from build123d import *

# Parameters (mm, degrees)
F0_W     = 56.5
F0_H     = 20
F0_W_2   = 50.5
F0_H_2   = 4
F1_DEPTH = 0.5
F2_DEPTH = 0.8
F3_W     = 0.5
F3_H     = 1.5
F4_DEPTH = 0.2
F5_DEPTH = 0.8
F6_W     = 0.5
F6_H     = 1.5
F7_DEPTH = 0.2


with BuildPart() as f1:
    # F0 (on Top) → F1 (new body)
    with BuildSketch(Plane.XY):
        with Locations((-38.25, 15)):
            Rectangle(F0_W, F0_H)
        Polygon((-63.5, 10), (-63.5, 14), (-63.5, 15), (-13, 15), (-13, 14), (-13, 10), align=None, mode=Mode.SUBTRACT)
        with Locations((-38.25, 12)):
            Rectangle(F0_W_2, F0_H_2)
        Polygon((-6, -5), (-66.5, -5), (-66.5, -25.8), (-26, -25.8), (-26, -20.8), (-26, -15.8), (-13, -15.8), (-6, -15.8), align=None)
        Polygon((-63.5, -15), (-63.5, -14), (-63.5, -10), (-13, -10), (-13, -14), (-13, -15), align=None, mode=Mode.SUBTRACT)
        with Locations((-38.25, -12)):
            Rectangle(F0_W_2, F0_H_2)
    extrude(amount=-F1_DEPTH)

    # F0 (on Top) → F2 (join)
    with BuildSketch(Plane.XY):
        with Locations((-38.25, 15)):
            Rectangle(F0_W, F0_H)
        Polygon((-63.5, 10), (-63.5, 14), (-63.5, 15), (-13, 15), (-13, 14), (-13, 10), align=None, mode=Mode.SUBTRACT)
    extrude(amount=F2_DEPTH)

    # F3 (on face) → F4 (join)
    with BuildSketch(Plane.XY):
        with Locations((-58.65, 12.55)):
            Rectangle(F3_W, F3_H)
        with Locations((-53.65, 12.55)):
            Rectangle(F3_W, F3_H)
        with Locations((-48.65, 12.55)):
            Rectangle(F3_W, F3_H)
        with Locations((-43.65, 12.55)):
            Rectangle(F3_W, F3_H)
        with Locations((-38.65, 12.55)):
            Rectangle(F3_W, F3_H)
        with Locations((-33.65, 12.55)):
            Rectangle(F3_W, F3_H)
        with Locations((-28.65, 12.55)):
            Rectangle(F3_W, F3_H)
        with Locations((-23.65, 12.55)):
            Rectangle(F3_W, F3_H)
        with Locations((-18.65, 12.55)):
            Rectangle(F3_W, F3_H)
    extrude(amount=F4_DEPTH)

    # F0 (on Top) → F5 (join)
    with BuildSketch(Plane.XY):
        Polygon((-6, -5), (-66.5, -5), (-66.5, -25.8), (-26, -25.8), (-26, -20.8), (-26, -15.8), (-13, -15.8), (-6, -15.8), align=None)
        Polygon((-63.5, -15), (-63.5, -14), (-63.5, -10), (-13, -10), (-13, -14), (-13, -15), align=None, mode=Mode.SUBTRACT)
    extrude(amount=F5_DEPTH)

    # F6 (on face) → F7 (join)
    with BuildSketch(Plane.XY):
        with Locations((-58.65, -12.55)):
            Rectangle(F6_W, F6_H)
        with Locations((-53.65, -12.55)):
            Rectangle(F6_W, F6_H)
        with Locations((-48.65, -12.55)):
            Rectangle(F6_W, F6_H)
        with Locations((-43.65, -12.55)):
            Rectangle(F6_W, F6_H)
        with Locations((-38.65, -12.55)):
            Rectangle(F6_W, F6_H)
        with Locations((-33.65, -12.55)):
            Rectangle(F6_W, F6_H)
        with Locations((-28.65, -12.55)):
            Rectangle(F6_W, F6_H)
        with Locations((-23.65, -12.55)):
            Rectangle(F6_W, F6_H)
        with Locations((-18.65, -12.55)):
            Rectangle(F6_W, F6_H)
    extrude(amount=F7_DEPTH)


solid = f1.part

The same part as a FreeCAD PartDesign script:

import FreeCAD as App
import Part
import Sketcher

V = App.Vector
Q = App.Units.Quantity


def add_polygon(sketch, points):
    """Adds a closed chain of lines whose ends are joined by coincident constraints."""
    first, n = sketch.GeometryCount, len(points)
    for a, b in zip(points, points[1:] + points[:1]):
        sketch.addGeometry(Part.LineSegment(App.Vector(*a, 0), App.Vector(*b, 0)), False)
    for i in range(n):
        sketch.addConstraint(Sketcher.Constraint("Coincident", first + i, 2, first + (i + 1) % n, 1))

doc = App.newDocument("Part")
params = doc.addObject("Spreadsheet::Sheet", "Params")
for row, (alias, value) in enumerate([
    ("sketch1_width", "20 mm"),
    ("sketch1_height", "1 mm"),
    ("sketch1_height2", "10 mm"),
    ("sketch1_width2", "56.5 mm"),
    ("sketch1_width3", "50.5 mm"),
    ("pad1_length", "0.5 mm"),
    ("sketch2_height", "20 mm"),
    ("sketch2_height2", "5 mm"),
    ("sketch2_width", "56.5 mm"),
    ("sketch2_width2", "50.5 mm"),
    ("pad2_length", "0.8 mm"),
    ("sketch3_width", "0.5 mm"),
    ("sketch3_height", "1.5 mm"),
    ("pad3_length", "0.2 mm"),
    ("sketch4_width", "20 mm"),
    ("sketch4_height", "10 mm"),
    ("sketch4_height2", "5 mm"),
    ("sketch4_width2", "60.5 mm"),
    ("sketch4_width3", "50.5 mm"),
    ("pad4_length", "0.8 mm"),
    ("sketch5_width", "0.5 mm"),
    ("sketch5_height", "1.5 mm"),
    ("pad5_length", "0.2 mm"),
], start=1):
    params.set(f"A{row}", alias)
    params.set(f"B{row}", "=" + value)
    params.setAlias(f"B{row}", alias)

body = doc.addObject("PartDesign::Body", "Body")
body.AllowCompound = True

sketch1 = body.newObject("Sketcher::SketchObject", "Sketch")
sketch1.AttachmentSupport = (doc.getObject("XY_Plane"), [""])
sketch1.MapMode = "FlatFace"
add_polygon(sketch1, [(-66.5, 25), (-66.5, 5), (-10, 5), (-10, 25)])
add_polygon(sketch1, [(-63.5, 14), (-63.5, 15), (-13, 15), (-13, 14)])
add_polygon(sketch1, [(-6, -5), (-66.5, -5), (-66.5, -25.8), (-26, -25.8), (-26, -15.8), (-6, -15.8)])
add_polygon(sketch1, [(-13, -15), (-63.5, -15), (-63.5, -14), (-13, -14)])
sketch1.addConstraint(Sketcher.Constraint("Vertical", 0))
sketch1.addConstraint(Sketcher.Constraint("Horizontal", 1))
sketch1.addConstraint(Sketcher.Constraint("Vertical", 2))
sketch1.addConstraint(Sketcher.Constraint("Horizontal", 3))
sketch1.addConstraint(Sketcher.Constraint("Vertical", 4))
sketch1.addConstraint(Sketcher.Constraint("Horizontal", 5))
sketch1.addConstraint(Sketcher.Constraint("Vertical", 6))
sketch1.addConstraint(Sketcher.Constraint("Horizontal", 7))
sketch1.addConstraint(Sketcher.Constraint("Horizontal", 8))
sketch1.addConstraint(Sketcher.Constraint("Vertical", 9))
sketch1.addConstraint(Sketcher.Constraint("Horizontal", 10))
sketch1.addConstraint(Sketcher.Constraint("Vertical", 11))
sketch1.addConstraint(Sketcher.Constraint("Horizontal", 12))
sketch1.addConstraint(Sketcher.Constraint("Vertical", 13))
sketch1.addConstraint(Sketcher.Constraint("Horizontal", 14))
sketch1.addConstraint(Sketcher.Constraint("Vertical", 15))
sketch1.addConstraint(Sketcher.Constraint("Horizontal", 16))
sketch1.addConstraint(Sketcher.Constraint("Vertical", 17))
sketch1.addConstraint(Sketcher.Constraint("Symmetric", 0, 2, 8, 2, -1))
sketch1.addConstraint(Sketcher.Constraint("Symmetric", 4, 2, 14, 2, -1))
sketch1.addConstraint(Sketcher.Constraint("Symmetric", 6, 2, 16, 2, -1))
sketch1.addConstraint(Sketcher.Constraint("Equal", 12, 0))
sketch1.addConstraint(Sketcher.Constraint("DistanceX", 12, 1, 12, 2, Q("20 mm")))
sketch1.addConstraint(Sketcher.Constraint("DistanceY", 4, 1, 4, 2, Q("1 mm")))
sketch1.addConstraint(Sketcher.Constraint("DistanceY", 11, 1, 11, 2, Q("10 mm")))
sketch1.addConstraint(Sketcher.Constraint("DistanceX", 1, 1, 1, 2, Q("56.5 mm")))
sketch1.addConstraint(Sketcher.Constraint("DistanceX", 5, 1, 5, 2, Q("50.5 mm")))
sketch1.addConstraint(Sketcher.Constraint("DistanceX", 8, 2, 8, 1, Q("60.5 mm")))
sketch1.addConstraint(Sketcher.Constraint("DistanceY", 9, 2, 9, 1, Q("20.8 mm")))
sketch1.addConstraint(Sketcher.Constraint("DistanceY", -1, 1, 0, 2, Q("5 mm")))
sketch1.addConstraint(Sketcher.Constraint("DistanceX", 1, 2, -1, 1, Q("10 mm")))
sketch1.addConstraint(Sketcher.Constraint("DistanceY", -1, 1, 4, 2, Q("15 mm")))
sketch1.addConstraint(Sketcher.Constraint("DistanceX", 5, 2, -1, 1, Q("13 mm")))
sketch1.setExpression("Constraints[40]", "Params.sketch1_width")
sketch1.setExpression("Constraints[41]", "Params.sketch1_height")
sketch1.setExpression("Constraints[42]", "Params.sketch1_height2")
sketch1.setExpression("Constraints[43]", "Params.sketch1_width2")
sketch1.setExpression("Constraints[44]", "Params.sketch1_width3")
pad1 = body.newObject("PartDesign::Pad", "Pad")
pad1.Profile = sketch1
pad1.setExpression("Length", "Params.pad1_length")
pad1.Reversed = True

sketch2 = body.newObject("Sketcher::SketchObject", "Sketch001")
sketch2.AttachmentSupport = (doc.getObject("XY_Plane"), [""])
sketch2.MapMode = "FlatFace"
add_polygon(sketch2, [(-66.5, 25), (-66.5, 5), (-10, 5), (-10, 25)])
add_polygon(sketch2, [(-13, 10), (-63.5, 10), (-63.5, 15), (-13, 15)])
sketch2.addConstraint(Sketcher.Constraint("Vertical", 0))
sketch2.addConstraint(Sketcher.Constraint("Horizontal", 1))
sketch2.addConstraint(Sketcher.Constraint("Vertical", 2))
sketch2.addConstraint(Sketcher.Constraint("Horizontal", 3))
sketch2.addConstraint(Sketcher.Constraint("Horizontal", 4))
sketch2.addConstraint(Sketcher.Constraint("Vertical", 5))
sketch2.addConstraint(Sketcher.Constraint("Horizontal", 6))
sketch2.addConstraint(Sketcher.Constraint("Vertical", 7))
sketch2.addConstraint(Sketcher.Constraint("DistanceY", 0, 2, 0, 1, Q("20 mm")))
sketch2.addConstraint(Sketcher.Constraint("DistanceY", 5, 1, 5, 2, Q("5 mm")))
sketch2.addConstraint(Sketcher.Constraint("DistanceX", 1, 1, 1, 2, Q("56.5 mm")))
sketch2.addConstraint(Sketcher.Constraint("DistanceX", 4, 2, 4, 1, Q("50.5 mm")))
sketch2.addConstraint(Sketcher.Constraint("DistanceY", -1, 1, 0, 2, Q("5 mm")))
sketch2.addConstraint(Sketcher.Constraint("DistanceX", 1, 2, -1, 1, Q("10 mm")))
sketch2.addConstraint(Sketcher.Constraint("DistanceY", -1, 1, 4, 2, Q("10 mm")))
sketch2.addConstraint(Sketcher.Constraint("DistanceX", 6, 2, -1, 1, Q("13 mm")))
sketch2.setExpression("Constraints[16]", "Params.sketch2_height")
sketch2.setExpression("Constraints[17]", "Params.sketch2_height2")
sketch2.setExpression("Constraints[18]", "Params.sketch2_width")
sketch2.setExpression("Constraints[19]", "Params.sketch2_width2")
pad2 = body.newObject("PartDesign::Pad", "Pad001")
pad2.Profile = sketch2
pad2.setExpression("Length", "Params.pad2_length")

sketch3 = body.newObject("Sketcher::SketchObject", "Sketch002")
sketch3.AttachmentSupport = (doc.getObject("XY_Plane"), [""])
sketch3.MapMode = "FlatFace"
add_polygon(sketch3, [(-58.9, 13.3), (-58.9, 11.8), (-58.4, 11.8), (-58.4, 13.3)])
add_polygon(sketch3, [(-53.9, 13.3), (-53.9, 11.8), (-53.4, 11.8), (-53.4, 13.3)])
add_polygon(sketch3, [(-48.9, 13.3), (-48.9, 11.8), (-48.4, 11.8), (-48.4, 13.3)])
add_polygon(sketch3, [(-43.9, 13.3), (-43.9, 11.8), (-43.4, 11.8), (-43.4, 13.3)])
add_polygon(sketch3, [(-38.9, 13.3), (-38.9, 11.8), (-38.4, 11.8), (-38.4, 13.3)])
add_polygon(sketch3, [(-33.9, 13.3), (-33.9, 11.8), (-33.4, 11.8), (-33.4, 13.3)])
add_polygon(sketch3, [(-28.9, 13.3), (-28.9, 11.8), (-28.4, 11.8), (-28.4, 13.3)])
add_polygon(sketch3, [(-23.9, 13.3), (-23.9, 11.8), (-23.4, 11.8), (-23.4, 13.3)])
add_polygon(sketch3, [(-18.9, 13.3), (-18.9, 11.8), (-18.4, 11.8), (-18.4, 13.3)])
sketch3.addConstraint(Sketcher.Constraint("Vertical", 0))
sketch3.addConstraint(Sketcher.Constraint("Horizontal", 1))
sketch3.addConstraint(Sketcher.Constraint("Vertical", 2))
sketch3.addConstraint(Sketcher.Constraint("Horizontal", 3))
sketch3.addConstraint(Sketcher.Constraint("Vertical", 4))
sketch3.addConstraint(Sketcher.Constraint("Horizontal", 5))
sketch3.addConstraint(Sketcher.Constraint("Vertical", 6))
sketch3.addConstraint(Sketcher.Constraint("Horizontal", 7))
sketch3.addConstraint(Sketcher.Constraint("Vertical", 8))
sketch3.addConstraint(Sketcher.Constraint("Horizontal", 9))
sketch3.addConstraint(Sketcher.Constraint("Vertical", 10))
sketch3.addConstraint(Sketcher.Constraint("Horizontal", 11))
sketch3.addConstraint(Sketcher.Constraint("Vertical", 12))
sketch3.addConstraint(Sketcher.Constraint("Horizontal", 13))
sketch3.addConstraint(Sketcher.Constraint("Vertical", 14))
sketch3.addConstraint(Sketcher.Constraint("Horizontal", 15))
sketch3.addConstraint(Sketcher.Constraint("Vertical", 16))
sketch3.addConstraint(Sketcher.Constraint("Horizontal", 17))
sketch3.addConstraint(Sketcher.Constraint("Vertical", 18))
sketch3.addConstraint(Sketcher.Constraint("Horizontal", 19))
sketch3.addConstraint(Sketcher.Constraint("Vertical", 20))
sketch3.addConstraint(Sketcher.Constraint("Horizontal", 21))
sketch3.addConstraint(Sketcher.Constraint("Vertical", 22))
sketch3.addConstraint(Sketcher.Constraint("Horizontal", 23))
sketch3.addConstraint(Sketcher.Constraint("Vertical", 24))
sketch3.addConstraint(Sketcher.Constraint("Horizontal", 25))
sketch3.addConstraint(Sketcher.Constraint("Vertical", 26))
sketch3.addConstraint(Sketcher.Constraint("Horizontal", 27))
sketch3.addConstraint(Sketcher.Constraint("Vertical", 28))
sketch3.addConstraint(Sketcher.Constraint("Horizontal", 29))
sketch3.addConstraint(Sketcher.Constraint("Vertical", 30))
sketch3.addConstraint(Sketcher.Constraint("Horizontal", 31))
sketch3.addConstraint(Sketcher.Constraint("Vertical", 32))
sketch3.addConstraint(Sketcher.Constraint("Horizontal", 33))
sketch3.addConstraint(Sketcher.Constraint("Vertical", 34))
sketch3.addConstraint(Sketcher.Constraint("Horizontal", 35))
sketch3.addConstraint(Sketcher.Constraint("Horizontal", 1, 2, 4, 2))
sketch3.addConstraint(Sketcher.Constraint("Horizontal", 3, 2, 6, 2))
sketch3.addConstraint(Sketcher.Constraint("Horizontal", 5, 2, 8, 2))
sketch3.addConstraint(Sketcher.Constraint("Horizontal", 7, 2, 10, 2))
sketch3.addConstraint(Sketcher.Constraint("Horizontal", 9, 2, 12, 2))
sketch3.addConstraint(Sketcher.Constraint("Horizontal", 11, 2, 14, 2))
sketch3.addConstraint(Sketcher.Constraint("Horizontal", 13, 2, 16, 2))
sketch3.addConstraint(Sketcher.Constraint("Horizontal", 15, 2, 18, 2))
sketch3.addConstraint(Sketcher.Constraint("Horizontal", 17, 2, 20, 2))
sketch3.addConstraint(Sketcher.Constraint("Horizontal", 19, 2, 22, 2))
sketch3.addConstraint(Sketcher.Constraint("Horizontal", 21, 2, 24, 2))
sketch3.addConstraint(Sketcher.Constraint("Horizontal", 23, 2, 26, 2))
sketch3.addConstraint(Sketcher.Constraint("Horizontal", 25, 2, 28, 2))
sketch3.addConstraint(Sketcher.Constraint("Horizontal", 27, 2, 30, 2))
sketch3.addConstraint(Sketcher.Constraint("Horizontal", 29, 2, 32, 2))
sketch3.addConstraint(Sketcher.Constraint("Horizontal", 31, 2, 34, 2))
sketch3.addConstraint(Sketcher.Constraint("Equal", 3, 5))
sketch3.addConstraint(Sketcher.Constraint("Equal", 7, 9))
sketch3.addConstraint(Sketcher.Constraint("Equal", 11, 13))
sketch3.addConstraint(Sketcher.Constraint("Equal", 15, 17))
sketch3.addConstraint(Sketcher.Constraint("Equal", 19, 21))
sketch3.addConstraint(Sketcher.Constraint("Equal", 23, 25))
sketch3.addConstraint(Sketcher.Constraint("Equal", 27, 29))
sketch3.addConstraint(Sketcher.Constraint("Equal", 31, 33))
sketch3.addConstraint(Sketcher.Constraint("DistanceX", 1, 1, 1, 2, Q("0.5 mm")))
sketch3.addConstraint(Sketcher.Constraint("DistanceY", 0, 2, 0, 1, Q("1.5 mm")))
sketch3.addConstraint(Sketcher.Constraint("DistanceX", 0, 2, 4, 2, Q("5 mm")))
sketch3.addConstraint(Sketcher.Constraint("DistanceX", 4, 2, 8, 2, Q("5 mm")))
sketch3.addConstraint(Sketcher.Constraint("DistanceX", 8, 2, 12, 2, Q("5 mm")))
sketch3.addConstraint(Sketcher.Constraint("DistanceX", 12, 2, 16, 2, Q("5 mm")))
sketch3.addConstraint(Sketcher.Constraint("DistanceX", 16, 2, 20, 2, Q("5 mm")))
sketch3.addConstraint(Sketcher.Constraint("DistanceX", 20, 2, 24, 2, Q("5 mm")))
sketch3.addConstraint(Sketcher.Constraint("DistanceX", 24, 2, 28, 2, Q("5 mm")))
sketch3.addConstraint(Sketcher.Constraint("DistanceX", 28, 2, 32, 2, Q("5 mm")))
sketch3.addConstraint(Sketcher.Constraint("DistanceX", 0, 2, -1, 1, Q("58.9 mm")))
sketch3.addConstraint(Sketcher.Constraint("DistanceY", -1, 1, 0, 2, Q("11.8 mm")))
sketch3.setExpression("Constraints[96]", "Params.sketch3_width")
sketch3.setExpression("Constraints[97]", "Params.sketch3_height")
pad3 = body.newObject("PartDesign::Pad", "Pad002")
pad3.Profile = sketch3
pad3.setExpression("Length", "Params.pad3_length")

sketch4 = body.newObject("Sketcher::SketchObject", "Sketch003")
sketch4.AttachmentSupport = (doc.getObject("XY_Plane"), [""])
sketch4.MapMode = "FlatFace"
add_polygon(sketch4, [(-6, -5), (-66.5, -5), (-66.5, -25.8), (-26, -25.8), (-26, -15.8), (-6, -15.8)])
add_polygon(sketch4, [(-13, -15), (-63.5, -15), (-63.5, -10), (-13, -10)])
sketch4.addConstraint(Sketcher.Constraint("Horizontal", 0))
sketch4.addConstraint(Sketcher.Constraint("Vertical", 1))
sketch4.addConstraint(Sketcher.Constraint("Horizontal", 2))
sketch4.addConstraint(Sketcher.Constraint("Vertical", 3))
sketch4.addConstraint(Sketcher.Constraint("Horizontal", 4))
sketch4.addConstraint(Sketcher.Constraint("Vertical", 5))
sketch4.addConstraint(Sketcher.Constraint("Horizontal", 6))
sketch4.addConstraint(Sketcher.Constraint("Vertical", 7))
sketch4.addConstraint(Sketcher.Constraint("Horizontal", 8))
sketch4.addConstraint(Sketcher.Constraint("Vertical", 9))
sketch4.addConstraint(Sketcher.Constraint("DistanceX", 4, 1, 4, 2, Q("20 mm")))
sketch4.addConstraint(Sketcher.Constraint("DistanceY", 3, 1, 3, 2, Q("10 mm")))
sketch4.addConstraint(Sketcher.Constraint("DistanceY", 7, 1, 7, 2, Q("5 mm")))
sketch4.addConstraint(Sketcher.Constraint("DistanceX", 0, 2, 0, 1, Q("60.5 mm")))
sketch4.addConstraint(Sketcher.Constraint("DistanceX", 6, 2, 6, 1, Q("50.5 mm")))
sketch4.addConstraint(Sketcher.Constraint("DistanceY", 1, 2, 1, 1, Q("20.8 mm")))
sketch4.addConstraint(Sketcher.Constraint("DistanceY", 0, 2, -1, 1, Q("5 mm")))
sketch4.addConstraint(Sketcher.Constraint("DistanceX", 2, 2, -1, 1, Q("26 mm")))
sketch4.addConstraint(Sketcher.Constraint("DistanceY", 6, 2, -1, 1, Q("15 mm")))
sketch4.addConstraint(Sketcher.Constraint("DistanceX", 8, 2, -1, 1, Q("13 mm")))
sketch4.setExpression("Constraints[20]", "Params.sketch4_width")
sketch4.setExpression("Constraints[21]", "Params.sketch4_height")
sketch4.setExpression("Constraints[22]", "Params.sketch4_height2")
sketch4.setExpression("Constraints[23]", "Params.sketch4_width2")
sketch4.setExpression("Constraints[24]", "Params.sketch4_width3")
pad4 = body.newObject("PartDesign::Pad", "Pad003")
pad4.Profile = sketch4
pad4.setExpression("Length", "Params.pad4_length")

sketch5 = body.newObject("Sketcher::SketchObject", "Sketch004")
sketch5.AttachmentSupport = (doc.getObject("XY_Plane"), [""])
sketch5.MapMode = "FlatFace"
add_polygon(sketch5, [(-58.9, -11.8), (-58.9, -13.3), (-58.4, -13.3), (-58.4, -11.8)])
add_polygon(sketch5, [(-53.9, -11.8), (-53.9, -13.3), (-53.4, -13.3), (-53.4, -11.8)])
add_polygon(sketch5, [(-48.9, -11.8), (-48.9, -13.3), (-48.4, -13.3), (-48.4, -11.8)])
add_polygon(sketch5, [(-43.9, -11.8), (-43.9, -13.3), (-43.4, -13.3), (-43.4, -11.8)])
add_polygon(sketch5, [(-38.9, -11.8), (-38.9, -13.3), (-38.4, -13.3), (-38.4, -11.8)])
add_polygon(sketch5, [(-33.9, -11.8), (-33.9, -13.3), (-33.4, -13.3), (-33.4, -11.8)])
add_polygon(sketch5, [(-28.9, -11.8), (-28.9, -13.3), (-28.4, -13.3), (-28.4, -11.8)])
add_polygon(sketch5, [(-23.9, -11.8), (-23.9, -13.3), (-23.4, -13.3), (-23.4, -11.8)])
add_polygon(sketch5, [(-18.9, -11.8), (-18.9, -13.3), (-18.4, -13.3), (-18.4, -11.8)])
sketch5.addConstraint(Sketcher.Constraint("Vertical", 0))
sketch5.addConstraint(Sketcher.Constraint("Horizontal", 1))
sketch5.addConstraint(Sketcher.Constraint("Vertical", 2))
sketch5.addConstraint(Sketcher.Constraint("Horizontal", 3))
sketch5.addConstraint(Sketcher.Constraint("Vertical", 4))
sketch5.addConstraint(Sketcher.Constraint("Horizontal", 5))
sketch5.addConstraint(Sketcher.Constraint("Vertical", 6))
sketch5.addConstraint(Sketcher.Constraint("Horizontal", 7))
sketch5.addConstraint(Sketcher.Constraint("Vertical", 8))
sketch5.addConstraint(Sketcher.Constraint("Horizontal", 9))
sketch5.addConstraint(Sketcher.Constraint("Vertical", 10))
sketch5.addConstraint(Sketcher.Constraint("Horizontal", 11))
sketch5.addConstraint(Sketcher.Constraint("Vertical", 12))
sketch5.addConstraint(Sketcher.Constraint("Horizontal", 13))
sketch5.addConstraint(Sketcher.Constraint("Vertical", 14))
sketch5.addConstraint(Sketcher.Constraint("Horizontal", 15))
sketch5.addConstraint(Sketcher.Constraint("Vertical", 16))
sketch5.addConstraint(Sketcher.Constraint("Horizontal", 17))
sketch5.addConstraint(Sketcher.Constraint("Vertical", 18))
sketch5.addConstraint(Sketcher.Constraint("Horizontal", 19))
sketch5.addConstraint(Sketcher.Constraint("Vertical", 20))
sketch5.addConstraint(Sketcher.Constraint("Horizontal", 21))
sketch5.addConstraint(Sketcher.Constraint("Vertical", 22))
sketch5.addConstraint(Sketcher.Constraint("Horizontal", 23))
sketch5.addConstraint(Sketcher.Constraint("Vertical", 24))
sketch5.addConstraint(Sketcher.Constraint("Horizontal", 25))
sketch5.addConstraint(Sketcher.Constraint("Vertical", 26))
sketch5.addConstraint(Sketcher.Constraint("Horizontal", 27))
sketch5.addConstraint(Sketcher.Constraint("Vertical", 28))
sketch5.addConstraint(Sketcher.Constraint("Horizontal", 29))
sketch5.addConstraint(Sketcher.Constraint("Vertical", 30))
sketch5.addConstraint(Sketcher.Constraint("Horizontal", 31))
sketch5.addConstraint(Sketcher.Constraint("Vertical", 32))
sketch5.addConstraint(Sketcher.Constraint("Horizontal", 33))
sketch5.addConstraint(Sketcher.Constraint("Vertical", 34))
sketch5.addConstraint(Sketcher.Constraint("Horizontal", 35))
sketch5.addConstraint(Sketcher.Constraint("Horizontal", 1, 2, 4, 2))
sketch5.addConstraint(Sketcher.Constraint("Horizontal", 3, 2, 6, 2))
sketch5.addConstraint(Sketcher.Constraint("Horizontal", 5, 2, 8, 2))
sketch5.addConstraint(Sketcher.Constraint("Horizontal", 7, 2, 10, 2))
sketch5.addConstraint(Sketcher.Constraint("Horizontal", 9, 2, 12, 2))
sketch5.addConstraint(Sketcher.Constraint("Horizontal", 11, 2, 14, 2))
sketch5.addConstraint(Sketcher.Constraint("Horizontal", 13, 2, 16, 2))
sketch5.addConstraint(Sketcher.Constraint("Horizontal", 15, 2, 18, 2))
sketch5.addConstraint(Sketcher.Constraint("Horizontal", 17, 2, 20, 2))
sketch5.addConstraint(Sketcher.Constraint("Horizontal", 19, 2, 22, 2))
sketch5.addConstraint(Sketcher.Constraint("Horizontal", 21, 2, 24, 2))
sketch5.addConstraint(Sketcher.Constraint("Horizontal", 23, 2, 26, 2))
sketch5.addConstraint(Sketcher.Constraint("Horizontal", 25, 2, 28, 2))
sketch5.addConstraint(Sketcher.Constraint("Horizontal", 27, 2, 30, 2))
sketch5.addConstraint(Sketcher.Constraint("Horizontal", 29, 2, 32, 2))
sketch5.addConstraint(Sketcher.Constraint("Horizontal", 31, 2, 34, 2))
sketch5.addConstraint(Sketcher.Constraint("Equal", 3, 5))
sketch5.addConstraint(Sketcher.Constraint("Equal", 7, 9))
sketch5.addConstraint(Sketcher.Constraint("Equal", 11, 13))
sketch5.addConstraint(Sketcher.Constraint("Equal", 15, 17))
sketch5.addConstraint(Sketcher.Constraint("Equal", 19, 21))
sketch5.addConstraint(Sketcher.Constraint("Equal", 23, 25))
sketch5.addConstraint(Sketcher.Constraint("Equal", 27, 29))
sketch5.addConstraint(Sketcher.Constraint("Equal", 31, 33))
sketch5.addConstraint(Sketcher.Constraint("DistanceX", 1, 1, 1, 2, Q("0.5 mm")))
sketch5.addConstraint(Sketcher.Constraint("DistanceY", 0, 2, 0, 1, Q("1.5 mm")))
sketch5.addConstraint(Sketcher.Constraint("DistanceX", 0, 2, 4, 2, Q("5 mm")))
sketch5.addConstraint(Sketcher.Constraint("DistanceX", 4, 2, 8, 2, Q("5 mm")))
sketch5.addConstraint(Sketcher.Constraint("DistanceX", 8, 2, 12, 2, Q("5 mm")))
sketch5.addConstraint(Sketcher.Constraint("DistanceX", 12, 2, 16, 2, Q("5 mm")))
sketch5.addConstraint(Sketcher.Constraint("DistanceX", 16, 2, 20, 2, Q("5 mm")))
sketch5.addConstraint(Sketcher.Constraint("DistanceX", 20, 2, 24, 2, Q("5 mm")))
sketch5.addConstraint(Sketcher.Constraint("DistanceX", 24, 2, 28, 2, Q("5 mm")))
sketch5.addConstraint(Sketcher.Constraint("DistanceX", 28, 2, 32, 2, Q("5 mm")))
sketch5.addConstraint(Sketcher.Constraint("DistanceX", 0, 2, -1, 1, Q("58.9 mm")))
sketch5.addConstraint(Sketcher.Constraint("DistanceY", 0, 2, -1, 1, Q("13.3 mm")))
sketch5.setExpression("Constraints[96]", "Params.sketch5_width")
sketch5.setExpression("Constraints[97]", "Params.sketch5_height")
pad5 = body.newObject("PartDesign::Pad", "Pad004")
pad5.Profile = sketch5
pad5.setExpression("Length", "Params.pad5_length")

doc.recompute()
